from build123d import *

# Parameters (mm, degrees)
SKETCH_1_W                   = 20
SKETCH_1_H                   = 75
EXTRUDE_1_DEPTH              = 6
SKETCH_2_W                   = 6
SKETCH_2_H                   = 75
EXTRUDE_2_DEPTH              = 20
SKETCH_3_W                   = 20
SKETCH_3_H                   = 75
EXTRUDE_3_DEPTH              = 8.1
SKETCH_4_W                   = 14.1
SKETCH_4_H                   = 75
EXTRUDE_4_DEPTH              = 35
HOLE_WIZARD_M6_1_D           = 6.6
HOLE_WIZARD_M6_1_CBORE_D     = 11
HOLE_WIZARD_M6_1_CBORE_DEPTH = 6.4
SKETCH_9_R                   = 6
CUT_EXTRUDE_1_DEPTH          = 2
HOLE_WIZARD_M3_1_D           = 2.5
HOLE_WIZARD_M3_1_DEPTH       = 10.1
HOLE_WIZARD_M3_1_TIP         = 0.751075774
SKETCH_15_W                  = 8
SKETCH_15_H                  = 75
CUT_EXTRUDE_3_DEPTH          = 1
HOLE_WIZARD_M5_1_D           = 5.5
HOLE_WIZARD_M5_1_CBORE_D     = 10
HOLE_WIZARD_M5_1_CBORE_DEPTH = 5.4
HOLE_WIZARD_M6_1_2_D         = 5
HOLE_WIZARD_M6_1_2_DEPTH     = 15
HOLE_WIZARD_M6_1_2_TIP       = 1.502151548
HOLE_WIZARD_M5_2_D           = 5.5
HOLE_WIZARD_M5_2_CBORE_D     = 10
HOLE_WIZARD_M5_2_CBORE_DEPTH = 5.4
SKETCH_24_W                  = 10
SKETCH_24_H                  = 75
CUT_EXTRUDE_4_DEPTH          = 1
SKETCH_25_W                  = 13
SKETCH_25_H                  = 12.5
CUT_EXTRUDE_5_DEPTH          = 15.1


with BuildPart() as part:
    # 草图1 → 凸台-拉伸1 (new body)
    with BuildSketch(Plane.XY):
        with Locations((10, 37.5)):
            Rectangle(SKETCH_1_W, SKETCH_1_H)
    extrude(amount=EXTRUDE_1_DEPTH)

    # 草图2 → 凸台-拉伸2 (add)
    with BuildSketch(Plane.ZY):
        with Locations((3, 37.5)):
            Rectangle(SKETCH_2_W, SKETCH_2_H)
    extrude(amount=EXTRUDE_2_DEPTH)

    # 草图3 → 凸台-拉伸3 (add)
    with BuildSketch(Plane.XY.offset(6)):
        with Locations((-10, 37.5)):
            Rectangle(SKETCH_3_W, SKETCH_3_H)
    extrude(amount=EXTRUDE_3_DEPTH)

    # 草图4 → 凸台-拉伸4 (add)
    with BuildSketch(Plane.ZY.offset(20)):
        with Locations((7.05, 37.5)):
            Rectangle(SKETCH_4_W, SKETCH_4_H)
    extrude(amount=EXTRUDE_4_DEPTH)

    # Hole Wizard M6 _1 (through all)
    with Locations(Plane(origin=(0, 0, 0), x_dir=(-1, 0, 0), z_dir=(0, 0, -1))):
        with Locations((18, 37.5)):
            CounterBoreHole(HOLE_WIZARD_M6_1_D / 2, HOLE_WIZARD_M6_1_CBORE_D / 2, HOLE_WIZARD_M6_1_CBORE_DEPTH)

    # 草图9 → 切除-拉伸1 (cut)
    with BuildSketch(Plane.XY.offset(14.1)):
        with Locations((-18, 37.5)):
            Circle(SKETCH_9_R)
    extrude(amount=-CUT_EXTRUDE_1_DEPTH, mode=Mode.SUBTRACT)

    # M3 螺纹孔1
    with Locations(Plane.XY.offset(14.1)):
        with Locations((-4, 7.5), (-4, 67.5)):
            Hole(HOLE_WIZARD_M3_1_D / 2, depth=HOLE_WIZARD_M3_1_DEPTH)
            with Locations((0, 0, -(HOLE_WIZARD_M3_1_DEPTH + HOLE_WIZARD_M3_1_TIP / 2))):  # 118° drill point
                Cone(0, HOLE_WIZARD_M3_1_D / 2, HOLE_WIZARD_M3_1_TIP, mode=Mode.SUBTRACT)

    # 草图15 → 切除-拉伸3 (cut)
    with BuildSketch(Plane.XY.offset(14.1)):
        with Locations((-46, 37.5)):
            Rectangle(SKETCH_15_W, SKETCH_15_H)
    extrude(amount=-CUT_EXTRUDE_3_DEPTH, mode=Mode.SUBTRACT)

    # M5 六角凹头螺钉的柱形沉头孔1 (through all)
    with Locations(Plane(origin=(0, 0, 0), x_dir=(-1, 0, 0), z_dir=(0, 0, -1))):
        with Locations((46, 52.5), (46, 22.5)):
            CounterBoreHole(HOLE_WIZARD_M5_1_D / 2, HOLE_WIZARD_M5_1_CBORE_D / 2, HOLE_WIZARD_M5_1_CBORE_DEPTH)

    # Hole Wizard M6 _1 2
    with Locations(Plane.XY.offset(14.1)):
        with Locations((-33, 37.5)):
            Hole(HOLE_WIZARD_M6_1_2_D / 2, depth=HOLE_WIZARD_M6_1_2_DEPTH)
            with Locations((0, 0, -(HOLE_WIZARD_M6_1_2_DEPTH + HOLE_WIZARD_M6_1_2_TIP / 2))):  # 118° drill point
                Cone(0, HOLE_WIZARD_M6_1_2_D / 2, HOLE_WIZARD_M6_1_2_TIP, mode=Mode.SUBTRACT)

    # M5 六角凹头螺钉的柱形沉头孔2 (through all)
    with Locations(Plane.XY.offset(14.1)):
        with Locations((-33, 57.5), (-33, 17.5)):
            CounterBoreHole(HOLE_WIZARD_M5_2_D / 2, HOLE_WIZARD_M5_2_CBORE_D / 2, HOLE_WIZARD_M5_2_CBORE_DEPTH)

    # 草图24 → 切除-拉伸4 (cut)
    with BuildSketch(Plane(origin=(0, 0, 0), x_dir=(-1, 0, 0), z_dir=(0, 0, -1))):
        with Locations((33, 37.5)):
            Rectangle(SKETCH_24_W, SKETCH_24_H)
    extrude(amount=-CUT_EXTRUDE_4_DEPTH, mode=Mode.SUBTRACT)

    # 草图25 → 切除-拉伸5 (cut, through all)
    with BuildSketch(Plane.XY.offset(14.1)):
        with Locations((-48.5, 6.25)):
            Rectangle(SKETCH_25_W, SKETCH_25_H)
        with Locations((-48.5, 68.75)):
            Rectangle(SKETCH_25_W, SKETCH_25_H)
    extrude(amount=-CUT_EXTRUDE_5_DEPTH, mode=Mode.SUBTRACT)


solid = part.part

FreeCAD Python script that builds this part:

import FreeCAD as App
import Part
import Sketcher
Q = App.Units.Quantity

doc = App.newDocument("Part")
body = doc.addObject("PartDesign::Body", "Body")

sketch1 = body.newObject("Sketcher::SketchObject", "Sketch")
sketch1.AttachmentSupport = (doc.getObject("XY_Plane"), [""])
sketch1.MapMode = "FlatFace"
sketch1.addGeometry([
    Part.LineSegment(App.Vector(0, 75, 0), App.Vector(0, 0, 0)),
    Part.LineSegment(App.Vector(0, 0, 0), App.Vector(20, 0, 0)),
    Part.LineSegment(App.Vector(20, 0, 0), App.Vector(20, 75, 0)),
    Part.LineSegment(App.Vector(20, 75, 0), App.Vector(0, 75, 0)),
], False)
sketch1.addConstraint([
    Sketcher.Constraint("Coincident", 0, 2, 1, 1),
    Sketcher.Constraint("Coincident", 1, 2, 2, 1),
    Sketcher.Constraint("Coincident", 2, 2, 3, 1),
    Sketcher.Constraint("Coincident", 3, 2, 0, 1),
    Sketcher.Constraint("Vertical", 0),
    Sketcher.Constraint("Horizontal", 1),
    Sketcher.Constraint("Vertical", 2),
    Sketcher.Constraint("Horizontal", 3),
    Sketcher.Constraint("Coincident", 0, 2, -1, 1),
    Sketcher.Constraint("DistanceX", 1, 1, 1, 2, Q("20 mm")),
    Sketcher.Constraint("DistanceY", 0, 2, 0, 1, Q("75 mm")),
])
pad1 = body.newObject("PartDesign::Pad", "Pad")
pad1.Profile = sketch1
pad1.Length = 6

sketch2 = body.newObject("Sketcher::SketchObject", "Sketch001")
sketch2.AttachmentSupport = (doc.getObject("YZ_Plane"), [""])
sketch2.MapMode = "FlatFace"
sketch2.addGeometry([
    Part.LineSegment(App.Vector(75, 0, 0), App.Vector(0, 0, 0)),
    Part.LineSegment(App.Vector(0, 0, 0), App.Vector(0, 6, 0)),
    Part.LineSegment(App.Vector(0, 6, 0), App.Vector(75, 6, 0)),
    Part.LineSegment(App.Vector(75, 6, 0), App.Vector(75, 0, 0)),
], False)
sketch2.addConstraint([
    Sketcher.Constraint("Coincident", 0, 2, 1, 1),
    Sketcher.Constraint("Coincident", 1, 2, 2, 1),
    Sketcher.Constraint("Coincident", 2, 2, 3, 1),
    Sketcher.Constraint("Coincident", 3, 2, 0, 1),
    Sketcher.Constraint("Horizontal", 0),
    Sketcher.Constraint("Vertical", 1),
    Sketcher.Constraint("Horizontal", 2),
    Sketcher.Constraint("Vertical", 3),
    Sketcher.Constraint("Coincident", 0, 2, -1, 1),
    Sketcher.Constraint("DistanceX", 0, 2, 0, 1, Q("75 mm")),
    Sketcher.Constraint("DistanceY", 1, 1, 1, 2, Q("6 mm")),
])
pad2 = body.newObject("PartDesign::Pad", "Pad001")
pad2.Profile = sketch2
pad2.Length = 20
pad2.Reversed = True

sketch3 = body.newObject("Sketcher::SketchObject", "Sketch002")
sketch3.AttachmentSupport = (doc.getObject("XY_Plane"), [""])
sketch3.MapMode = "FlatFace"
sketch3.AttachmentOffset = App.Placement(App.Vector(0, 0, 6), App.Rotation())
sketch3.addGeometry([
    Part.LineSegment(App.Vector(-20, 75, 0), App.Vector(-20, 0, 0)),
    Part.LineSegment(App.Vector(-20, 0, 0), App.Vector(0, 0, 0)),
    Part.LineSegment(App.Vector(0, 0, 0), App.Vector(0, 75, 0)),
    Part.LineSegment(App.Vector(0, 75, 0), App.Vector(-20, 75, 0)),
], False)
sketch3.addConstraint([
    Sketcher.Constraint("Coincident", 0, 2, 1, 1),
    Sketcher.Constraint("Coincident", 1, 2, 2, 1),
    Sketcher.Constraint("Coincident", 2, 2, 3, 1),
    Sketcher.Constraint("Coincident", 3, 2, 0, 1),
    Sketcher.Constraint("Vertical", 0),
    Sketcher.Constraint("Horizontal", 1),
    Sketcher.Constraint("Vertical", 2),
    Sketcher.Constraint("Horizontal", 3),
    Sketcher.Constraint("Coincident", 1, 2, -1, 1),
    Sketcher.Constraint("DistanceX", 1, 1, 1, 2, Q("20 mm")),
    Sketcher.Constraint("DistanceY", 0, 2, 0, 1, Q("75 mm")),
])
pad3 = body.newObject("PartDesign::Pad", "Pad002")
pad3.Profile = sketch3
pad3.Length = 8.1

sketch4 = body.newObject("Sketcher::SketchObject", "Sketch003")
sketch4.AttachmentSupport = (doc.getObject("YZ_Plane"), [""])
sketch4.MapMode = "FlatFace"
sketch4.AttachmentOffset = App.Placement(App.Vector(0, 0, -20), App.Rotation())
sketch4.addGeometry([
    Part.LineSegment(App.Vector(75, 0, 0), App.Vector(0, 0, 0)),
    Part.LineSegment(App.Vector(0, 0, 0), App.Vector(0, 14, 0)),
    Part.LineSegment(App.Vector(0, 14, 0), App.Vector(75, 14, 0)),
    Part.LineSegment(App.Vector(75, 14, 0), App.Vector(75, 0, 0)),
], False)
sketch4.addConstraint([
    Sketcher.Constraint("Coincident", 0, 2, 1, 1),
    Sketcher.Constraint("Coincident", 1, 2, 2, 1),
    Sketcher.Constraint("Coincident", 2, 2, 3, 1),
    Sketcher.Constraint("Coincident", 3, 2, 0, 1),
    Sketcher.Constraint("Horizontal", 0),
    Sketcher.Constraint("Vertical", 1),
    Sketcher.Constraint("Horizontal", 2),
    Sketcher.Constraint("Vertical", 3),
    Sketcher.Constraint("Coincident", 0, 2, -1, 1),
    Sketcher.Constraint("DistanceX", 0, 2, 0, 1, Q("75 mm")),
    Sketcher.Constraint("DistanceY", 1, 1, 1, 2, Q("14.1 mm")),
])
pad4 = body.newObject("PartDesign::Pad", "Pad003")
pad4.Profile = sketch4
pad4.Length = 35
pad4.Reversed = True

sketch5 = body.newObject("Sketcher::SketchObject", "Sketch004")
sketch5.AttachmentSupport = (doc.getObject("XY_Plane"), [""])
sketch5.MapMode = "FlatFace"
sketch5.addGeometry(Part.Circle(App.Vector(-18, 37.5, 0), App.Vector(0, 0, 1), 3.3), False)
sketch5.addConstraint([
    Sketcher.Constraint("Diameter", 0, Q("6.6 mm")),
    Sketcher.Constraint("DistanceX", 0, 3, -1, 1, Q("18 mm")),
    Sketcher.Constraint("DistanceY", -1, 1, 0, 3, Q("37.5 mm")),
])
doc.recompute()
hole = body.newObject("PartDesign::Hole", "Hole")
hole.Profile = sketch5
hole.ThreadType = "None"
hole.Diameter = 6.6
hole.DepthType = "ThroughAll"
hole.HoleCutType = "Counterbore"
hole.HoleCutDiameter = 11
hole.HoleCutDepth = 6.4
hole.Reversed = True

sketch6 = body.newObject("Sketcher::SketchObject", "Sketch005")
sketch6.AttachmentSupport = (doc.getObject("XY_Plane"), [""])
sketch6.MapMode = "FlatFace"
sketch6.AttachmentOffset = App.Placement(App.Vector(0, 0, 14.1), App.Rotation())
sketch6.addGeometry(Part.Circle(App.Vector(-18, 38, 0), App.Vector(0, 0, 1), 6), False)
sketch6.addConstraint([
    Sketcher.Constraint("Diameter", 0, Q("12 mm")),
    Sketcher.Constraint("DistanceX", 0, 3, -1, 1, Q("18 mm")),
    Sketcher.Constraint("DistanceY", -1, 1, 0, 3, Q("37.5 mm")),
])
pocket1 = body.newObject("PartDesign::Pocket", "Pocket")
pocket1.Profile = sketch6
pocket1.Length = 2

sketch7 = body.newObject("Sketcher::SketchObject", "Sketch006")
sketch7.AttachmentSupport = (doc.getObject("XY_Plane"), [""])
sketch7.MapMode = "FlatFace"
sketch7.AttachmentOffset = App.Placement(App.Vector(0, 0, 14.1), App.Rotation())
sketch7.addGeometry([
    Part.Circle(App.Vector(-4, 7.5, 0), App.Vector(0, 0, 1), 1.2),
    Part.Circle(App.Vector(-4, 67.5, 0), App.Vector(0, 0, 1), 1.2),
], False)
sketch7.addConstraint([
    Sketcher.Constraint("Equal", 0, 1),
    Sketcher.Constraint("Vertical", 0, 3, 1, 3),
    Sketcher.Constraint("Diameter", 0, Q("2.5 mm")),
    Sketcher.Constraint("DistanceX", 0, 3, -1, 1, Q("4 mm")),
    Sketcher.Constraint("DistanceY", 0, 3, 1, 3, Q("60 mm")),
    Sketcher.Constraint("DistanceY", -1, 1, 0, 3, Q("7.5 mm")),
])
doc.recompute()
hole2 = body.newObject("PartDesign::Hole", "Hole001")
hole2.Profile = sketch7
hole2.ThreadType = "None"
hole2.Diameter = 2.5
hole2.DepthType = "Dimension"
hole2.Depth = 10.1
hole2.DrillPoint = "Angled"
hole2.DrillPointAngle = 118

sketch8 = body.newObject("Sketcher::SketchObject", "Sketch007")
sketch8.AttachmentSupport = (doc.getObject("XY_Plane"), [""])
sketch8.MapMode = "FlatFace"
sketch8.AttachmentOffset = App.Placement(App.Vector(0, 0, 14.1), App.Rotation())
sketch8.addGeometry([
    Part.LineSegment(App.Vector(-50, 75, 0), App.Vector(-50, 0, 0)),
    Part.LineSegment(App.Vector(-50, 0, 0), App.Vector(-42, 0, 0)),
    Part.LineSegment(App.Vector(-42, 0, 0), App.Vector(-42, 75, 0)),
    Part.LineSegment(App.Vector(-42, 75, 0), App.Vector(-50, 75, 0)),
], False)
sketch8.addConstraint([
    Sketcher.Constraint("Coincident", 0, 2, 1, 1),
    Sketcher.Constraint("Coincident", 1, 2, 2, 1),
    Sketcher.Constraint("Coincident", 2, 2, 3, 1),
    Sketcher.Constraint("Coincident", 3, 2, 0, 1),
    Sketcher.Constraint("Vertical", 0),
    Sketcher.Constraint("Horizontal", 1),
    Sketcher.Constraint("Vertical", 2),
    Sketcher.Constraint("Horizontal", 3),
    Sketcher.Constraint("PointOnObject", 0, 2, -1),
    Sketcher.Constraint("DistanceX", 1, 1, 1, 2, Q("8 mm")),
    Sketcher.Constraint("DistanceY", 0, 2, 0, 1, Q("75 mm")),
    Sketcher.Constraint("DistanceX", 0, 2, -1, 1, Q("50 mm")),
])
pocket2 = body.newObject("PartDesign::Pocket", "Pocket001")
pocket2.Profile = sketch8
pocket2.Length = 1

sketch9 = body.newObject("Sketcher::SketchObject", "Sketch008")
sketch9.AttachmentSupport = (doc.getObject("XY_Plane"), [""])
sketch9.MapMode = "FlatFace"
sketch9.addGeometry([
    Part.Circle(App.Vector(-46, 52.5, 0), App.Vector(0, 0, 1), 2.8),
    Part.Circle(App.Vector(-46, 22.5, 0), App.Vector(0, 0, 1), 2.8),
], False)
sketch9.addConstraint([
    Sketcher.Constraint("Equal", 0, 1),
    Sketcher.Constraint("Vertical", 0, 3, 1, 3),
    Sketcher.Constraint("Diameter", 0, Q("5.5 mm")),
    Sketcher.Constraint("DistanceX", 0, 3, -1, 1, Q("46 mm")),
    Sketcher.Constraint("DistanceY", 1, 3, 0, 3, Q("30 mm")),
    Sketcher.Constraint("DistanceY", -1, 1, 0, 3, Q("52.5 mm")),
])
doc.recompute()
hole3 = body.newObject("PartDesign::Hole", "Hole002")
hole3.Profile = sketch9
hole3.ThreadType = "None"
hole3.Diameter = 5.5
hole3.DepthType = "ThroughAll"
hole3.HoleCutType = "Counterbore"
hole3.HoleCutDiameter = 10
hole3.HoleCutDepth = 5.4
hole3.Reversed = True

sketch10 = body.newObject("Sketcher::SketchObject", "Sketch009")
sketch10.AttachmentSupport = (doc.getObject("XY_Plane"), [""])
sketch10.MapMode = "FlatFace"
sketch10.AttachmentOffset = App.Placement(App.Vector(0, 0, 14.1), App.Rotation())
sketch10.addGeometry(Part.Circle(App.Vector(-33, 37.5, 0), App.Vector(0, 0, 1), 2.5), False)
sketch10.addConstraint([
    Sketcher.Constraint("Diameter", 0, Q("5 mm")),
    Sketcher.Constraint("DistanceX", 0, 3, -1, 1, Q("33 mm")),
    Sketcher.Constraint("DistanceY", -1, 1, 0, 3, Q("37.5 mm")),
])
doc.recompute()
hole4 = body.newObject("PartDesign::Hole", "Hole003")
hole4.Profile = sketch10
hole4.ThreadType = "None"
hole4.Diameter = 5
hole4.DepthType = "Dimension"
hole4.Depth = 15
hole4.DrillPoint = "Angled"
hole4.DrillPointAngle = 118

sketch11 = body.newObject("Sketcher::SketchObject", "Sketch010")
sketch11.AttachmentSupport = (doc.getObject("XY_Plane"), [""])
sketch11.MapMode = "FlatFace"
sketch11.AttachmentOffset = App.Placement(App.Vector(0, 0, 14.1), App.Rotation())
sketch11.addGeometry([
    Part.Circle(App.Vector(-33, 57.5, 0), App.Vector(0, 0, 1), 2.8),
    Part.Circle(App.Vector(-33, 17.5, 0), App.Vector(0, 0, 1), 2.8),
], False)
sketch11.addConstraint([
    Sketcher.Constraint("Equal", 0, 1),
    Sketcher.Constraint("Vertical", 0, 3, 1, 3),
    Sketcher.Constraint("Diameter", 0, Q("5.5 mm")),
    Sketcher.Constraint("DistanceX", 0, 3, -1, 1, Q("33 mm")),
    Sketcher.Constraint("DistanceY", 1, 3, 0, 3, Q("40 mm")),
    Sketcher.Constraint("DistanceY", -1, 1, 0, 3, Q("57.5 mm")),
])
doc.recompute()
hole5 = body.newObject("PartDesign::Hole", "Hole004")
hole5.Profile = sketch11
hole5.ThreadType = "None"
hole5.Diameter = 5.5
hole5.DepthType = "ThroughAll"
hole5.HoleCutType = "Counterbore"
hole5.HoleCutDiameter = 10
hole5.HoleCutDepth = 5.4

sketch12 = body.newObject("Sketcher::SketchObject", "Sketch011")
sketch12.AttachmentSupport = (doc.getObject("XY_Plane"), [""])
sketch12.MapMode = "FlatFace"
sketch12.addGeometry([
    Part.LineSegment(App.Vector(-28, 75, 0), App.Vector(-28, 0, 0)),
    Part.LineSegment(App.Vector(-28, 0, 0), App.Vector(-38, 0, 0)),
    Part.LineSegment(App.Vector(-38, 0, 0), App.Vector(-38, 75, 0)),
    Part.LineSegment(App.Vector(-38, 75, 0), App.Vector(-28, 75, 0)),
], False)
sketch12.addConstraint([
    Sketcher.Constraint("Coincident", 0, 2, 1, 1),
    Sketcher.Constraint("Coincident", 1, 2, 2, 1),
    Sketcher.Constraint("Coincident", 2, 2, 3, 1),
    Sketcher.Constraint("Coincident", 3, 2, 0, 1),
    Sketcher.Constraint("Vertical", 0),
    Sketcher.Constraint("Horizontal", 1),
    Sketcher.Constraint("Vertical", 2),
    Sketcher.Constraint("Horizontal", 3),
    Sketcher.Constraint("PointOnObject", 0, 2, -1),
    Sketcher.Constraint("DistanceX", 1, 2, 1, 1, Q("10 mm")),
    Sketcher.Constraint("DistanceY", 0, 2, 0, 1, Q("75 mm")),
    Sketcher.Constraint("DistanceX", 0, 2, -1, 1, Q("28 mm")),
])
pocket3 = body.newObject("PartDesign::Pocket", "Pocket002")
pocket3.Profile = sketch12
pocket3.Length = 1
pocket3.Reversed = True

sketch13 = body.newObject("Sketcher::SketchObject", "Sketch012")
sketch13.AttachmentSupport = (doc.getObject("XY_Plane"), [""])
sketch13.MapMode = "FlatFace"
sketch13.AttachmentOffset = App.Placement(App.Vector(0, 0, 14.1), App.Rotation())
sketch13.addGeometry([
    Part.LineSegment(App.Vector(-55, 12, 0), App.Vector(-55, 0, 0)),
    Part.LineSegment(App.Vector(-55, 0, 0), App.Vector(-42, 0, 0)),
    Part.LineSegment(App.Vector(-42, 0, 0), App.Vector(-42, 12, 0)),
    Part.LineSegment(App.Vector(-42, 12, 0), App.Vector(-55, 12, 0)),
    Part.LineSegment(App.Vector(-55, 75, 0), App.Vector(-55, 62, 0)),
    Part.LineSegment(App.Vector(-55, 62, 0), App.Vector(-42, 62, 0)),
    Part.LineSegment(App.Vector(-42, 62, 0), App.Vector(-42, 75, 0)),
    Part.LineSegment(App.Vector(-42, 75, 0), App.Vector(-55, 75, 0)),
], False)
sketch13.addConstraint([
    Sketcher.Constraint("Coincident", 0, 2, 1, 1),
    Sketcher.Constraint("Coincident", 1, 2, 2, 1),
    Sketcher.Constraint("Coincident", 2, 2, 3, 1),
    Sketcher.Constraint("Coincident", 3, 2, 0, 1),
    Sketcher.Constraint("Coincident", 4, 2, 5, 1),
    Sketcher.Constraint("Coincident", 5, 2, 6, 1),
    Sketcher.Constraint("Coincident", 6, 2, 7, 1),
    Sketcher.Constraint("Coincident", 7, 2, 4, 1),
    Sketcher.Constraint("Vertical", 0),
    Sketcher.Constraint("Horizontal", 1),
    Sketcher.Constraint("Vertical", 2),
    Sketcher.Constraint("Horizontal", 3),
    Sketcher.Constraint("Vertical", 4),
    Sketcher.Constraint("Horizontal", 5),
    Sketcher.Constraint("Vertical", 6),
    Sketcher.Constraint("Horizontal", 7),
    Sketcher.Constraint("PointOnObject", 0, 2, -1),
    Sketcher.Constraint("Vertical", 3, 2, 4, 2),
    Sketcher.Constraint("Vertical", 2, 2, 5, 2),
    Sketcher.Constraint("Equal", 2, 4),
    Sketcher.Constraint("DistanceX", 1, 1, 1, 2, Q("13 mm")),
    Sketcher.Constraint("DistanceY", 0, 2, 0, 1, Q("12.5 mm")),
    Sketcher.Constraint("DistanceX", 0, 2, -1, 1, Q("55 mm")),
    Sketcher.Constraint("DistanceY", -1, 1, 6, 2, Q("75 mm")),
])
pocket4 = body.newObject("PartDesign::Pocket", "Pocket003")
pocket4.Profile = sketch13
pocket4.Type = "ThroughAll"

doc.recompute()
